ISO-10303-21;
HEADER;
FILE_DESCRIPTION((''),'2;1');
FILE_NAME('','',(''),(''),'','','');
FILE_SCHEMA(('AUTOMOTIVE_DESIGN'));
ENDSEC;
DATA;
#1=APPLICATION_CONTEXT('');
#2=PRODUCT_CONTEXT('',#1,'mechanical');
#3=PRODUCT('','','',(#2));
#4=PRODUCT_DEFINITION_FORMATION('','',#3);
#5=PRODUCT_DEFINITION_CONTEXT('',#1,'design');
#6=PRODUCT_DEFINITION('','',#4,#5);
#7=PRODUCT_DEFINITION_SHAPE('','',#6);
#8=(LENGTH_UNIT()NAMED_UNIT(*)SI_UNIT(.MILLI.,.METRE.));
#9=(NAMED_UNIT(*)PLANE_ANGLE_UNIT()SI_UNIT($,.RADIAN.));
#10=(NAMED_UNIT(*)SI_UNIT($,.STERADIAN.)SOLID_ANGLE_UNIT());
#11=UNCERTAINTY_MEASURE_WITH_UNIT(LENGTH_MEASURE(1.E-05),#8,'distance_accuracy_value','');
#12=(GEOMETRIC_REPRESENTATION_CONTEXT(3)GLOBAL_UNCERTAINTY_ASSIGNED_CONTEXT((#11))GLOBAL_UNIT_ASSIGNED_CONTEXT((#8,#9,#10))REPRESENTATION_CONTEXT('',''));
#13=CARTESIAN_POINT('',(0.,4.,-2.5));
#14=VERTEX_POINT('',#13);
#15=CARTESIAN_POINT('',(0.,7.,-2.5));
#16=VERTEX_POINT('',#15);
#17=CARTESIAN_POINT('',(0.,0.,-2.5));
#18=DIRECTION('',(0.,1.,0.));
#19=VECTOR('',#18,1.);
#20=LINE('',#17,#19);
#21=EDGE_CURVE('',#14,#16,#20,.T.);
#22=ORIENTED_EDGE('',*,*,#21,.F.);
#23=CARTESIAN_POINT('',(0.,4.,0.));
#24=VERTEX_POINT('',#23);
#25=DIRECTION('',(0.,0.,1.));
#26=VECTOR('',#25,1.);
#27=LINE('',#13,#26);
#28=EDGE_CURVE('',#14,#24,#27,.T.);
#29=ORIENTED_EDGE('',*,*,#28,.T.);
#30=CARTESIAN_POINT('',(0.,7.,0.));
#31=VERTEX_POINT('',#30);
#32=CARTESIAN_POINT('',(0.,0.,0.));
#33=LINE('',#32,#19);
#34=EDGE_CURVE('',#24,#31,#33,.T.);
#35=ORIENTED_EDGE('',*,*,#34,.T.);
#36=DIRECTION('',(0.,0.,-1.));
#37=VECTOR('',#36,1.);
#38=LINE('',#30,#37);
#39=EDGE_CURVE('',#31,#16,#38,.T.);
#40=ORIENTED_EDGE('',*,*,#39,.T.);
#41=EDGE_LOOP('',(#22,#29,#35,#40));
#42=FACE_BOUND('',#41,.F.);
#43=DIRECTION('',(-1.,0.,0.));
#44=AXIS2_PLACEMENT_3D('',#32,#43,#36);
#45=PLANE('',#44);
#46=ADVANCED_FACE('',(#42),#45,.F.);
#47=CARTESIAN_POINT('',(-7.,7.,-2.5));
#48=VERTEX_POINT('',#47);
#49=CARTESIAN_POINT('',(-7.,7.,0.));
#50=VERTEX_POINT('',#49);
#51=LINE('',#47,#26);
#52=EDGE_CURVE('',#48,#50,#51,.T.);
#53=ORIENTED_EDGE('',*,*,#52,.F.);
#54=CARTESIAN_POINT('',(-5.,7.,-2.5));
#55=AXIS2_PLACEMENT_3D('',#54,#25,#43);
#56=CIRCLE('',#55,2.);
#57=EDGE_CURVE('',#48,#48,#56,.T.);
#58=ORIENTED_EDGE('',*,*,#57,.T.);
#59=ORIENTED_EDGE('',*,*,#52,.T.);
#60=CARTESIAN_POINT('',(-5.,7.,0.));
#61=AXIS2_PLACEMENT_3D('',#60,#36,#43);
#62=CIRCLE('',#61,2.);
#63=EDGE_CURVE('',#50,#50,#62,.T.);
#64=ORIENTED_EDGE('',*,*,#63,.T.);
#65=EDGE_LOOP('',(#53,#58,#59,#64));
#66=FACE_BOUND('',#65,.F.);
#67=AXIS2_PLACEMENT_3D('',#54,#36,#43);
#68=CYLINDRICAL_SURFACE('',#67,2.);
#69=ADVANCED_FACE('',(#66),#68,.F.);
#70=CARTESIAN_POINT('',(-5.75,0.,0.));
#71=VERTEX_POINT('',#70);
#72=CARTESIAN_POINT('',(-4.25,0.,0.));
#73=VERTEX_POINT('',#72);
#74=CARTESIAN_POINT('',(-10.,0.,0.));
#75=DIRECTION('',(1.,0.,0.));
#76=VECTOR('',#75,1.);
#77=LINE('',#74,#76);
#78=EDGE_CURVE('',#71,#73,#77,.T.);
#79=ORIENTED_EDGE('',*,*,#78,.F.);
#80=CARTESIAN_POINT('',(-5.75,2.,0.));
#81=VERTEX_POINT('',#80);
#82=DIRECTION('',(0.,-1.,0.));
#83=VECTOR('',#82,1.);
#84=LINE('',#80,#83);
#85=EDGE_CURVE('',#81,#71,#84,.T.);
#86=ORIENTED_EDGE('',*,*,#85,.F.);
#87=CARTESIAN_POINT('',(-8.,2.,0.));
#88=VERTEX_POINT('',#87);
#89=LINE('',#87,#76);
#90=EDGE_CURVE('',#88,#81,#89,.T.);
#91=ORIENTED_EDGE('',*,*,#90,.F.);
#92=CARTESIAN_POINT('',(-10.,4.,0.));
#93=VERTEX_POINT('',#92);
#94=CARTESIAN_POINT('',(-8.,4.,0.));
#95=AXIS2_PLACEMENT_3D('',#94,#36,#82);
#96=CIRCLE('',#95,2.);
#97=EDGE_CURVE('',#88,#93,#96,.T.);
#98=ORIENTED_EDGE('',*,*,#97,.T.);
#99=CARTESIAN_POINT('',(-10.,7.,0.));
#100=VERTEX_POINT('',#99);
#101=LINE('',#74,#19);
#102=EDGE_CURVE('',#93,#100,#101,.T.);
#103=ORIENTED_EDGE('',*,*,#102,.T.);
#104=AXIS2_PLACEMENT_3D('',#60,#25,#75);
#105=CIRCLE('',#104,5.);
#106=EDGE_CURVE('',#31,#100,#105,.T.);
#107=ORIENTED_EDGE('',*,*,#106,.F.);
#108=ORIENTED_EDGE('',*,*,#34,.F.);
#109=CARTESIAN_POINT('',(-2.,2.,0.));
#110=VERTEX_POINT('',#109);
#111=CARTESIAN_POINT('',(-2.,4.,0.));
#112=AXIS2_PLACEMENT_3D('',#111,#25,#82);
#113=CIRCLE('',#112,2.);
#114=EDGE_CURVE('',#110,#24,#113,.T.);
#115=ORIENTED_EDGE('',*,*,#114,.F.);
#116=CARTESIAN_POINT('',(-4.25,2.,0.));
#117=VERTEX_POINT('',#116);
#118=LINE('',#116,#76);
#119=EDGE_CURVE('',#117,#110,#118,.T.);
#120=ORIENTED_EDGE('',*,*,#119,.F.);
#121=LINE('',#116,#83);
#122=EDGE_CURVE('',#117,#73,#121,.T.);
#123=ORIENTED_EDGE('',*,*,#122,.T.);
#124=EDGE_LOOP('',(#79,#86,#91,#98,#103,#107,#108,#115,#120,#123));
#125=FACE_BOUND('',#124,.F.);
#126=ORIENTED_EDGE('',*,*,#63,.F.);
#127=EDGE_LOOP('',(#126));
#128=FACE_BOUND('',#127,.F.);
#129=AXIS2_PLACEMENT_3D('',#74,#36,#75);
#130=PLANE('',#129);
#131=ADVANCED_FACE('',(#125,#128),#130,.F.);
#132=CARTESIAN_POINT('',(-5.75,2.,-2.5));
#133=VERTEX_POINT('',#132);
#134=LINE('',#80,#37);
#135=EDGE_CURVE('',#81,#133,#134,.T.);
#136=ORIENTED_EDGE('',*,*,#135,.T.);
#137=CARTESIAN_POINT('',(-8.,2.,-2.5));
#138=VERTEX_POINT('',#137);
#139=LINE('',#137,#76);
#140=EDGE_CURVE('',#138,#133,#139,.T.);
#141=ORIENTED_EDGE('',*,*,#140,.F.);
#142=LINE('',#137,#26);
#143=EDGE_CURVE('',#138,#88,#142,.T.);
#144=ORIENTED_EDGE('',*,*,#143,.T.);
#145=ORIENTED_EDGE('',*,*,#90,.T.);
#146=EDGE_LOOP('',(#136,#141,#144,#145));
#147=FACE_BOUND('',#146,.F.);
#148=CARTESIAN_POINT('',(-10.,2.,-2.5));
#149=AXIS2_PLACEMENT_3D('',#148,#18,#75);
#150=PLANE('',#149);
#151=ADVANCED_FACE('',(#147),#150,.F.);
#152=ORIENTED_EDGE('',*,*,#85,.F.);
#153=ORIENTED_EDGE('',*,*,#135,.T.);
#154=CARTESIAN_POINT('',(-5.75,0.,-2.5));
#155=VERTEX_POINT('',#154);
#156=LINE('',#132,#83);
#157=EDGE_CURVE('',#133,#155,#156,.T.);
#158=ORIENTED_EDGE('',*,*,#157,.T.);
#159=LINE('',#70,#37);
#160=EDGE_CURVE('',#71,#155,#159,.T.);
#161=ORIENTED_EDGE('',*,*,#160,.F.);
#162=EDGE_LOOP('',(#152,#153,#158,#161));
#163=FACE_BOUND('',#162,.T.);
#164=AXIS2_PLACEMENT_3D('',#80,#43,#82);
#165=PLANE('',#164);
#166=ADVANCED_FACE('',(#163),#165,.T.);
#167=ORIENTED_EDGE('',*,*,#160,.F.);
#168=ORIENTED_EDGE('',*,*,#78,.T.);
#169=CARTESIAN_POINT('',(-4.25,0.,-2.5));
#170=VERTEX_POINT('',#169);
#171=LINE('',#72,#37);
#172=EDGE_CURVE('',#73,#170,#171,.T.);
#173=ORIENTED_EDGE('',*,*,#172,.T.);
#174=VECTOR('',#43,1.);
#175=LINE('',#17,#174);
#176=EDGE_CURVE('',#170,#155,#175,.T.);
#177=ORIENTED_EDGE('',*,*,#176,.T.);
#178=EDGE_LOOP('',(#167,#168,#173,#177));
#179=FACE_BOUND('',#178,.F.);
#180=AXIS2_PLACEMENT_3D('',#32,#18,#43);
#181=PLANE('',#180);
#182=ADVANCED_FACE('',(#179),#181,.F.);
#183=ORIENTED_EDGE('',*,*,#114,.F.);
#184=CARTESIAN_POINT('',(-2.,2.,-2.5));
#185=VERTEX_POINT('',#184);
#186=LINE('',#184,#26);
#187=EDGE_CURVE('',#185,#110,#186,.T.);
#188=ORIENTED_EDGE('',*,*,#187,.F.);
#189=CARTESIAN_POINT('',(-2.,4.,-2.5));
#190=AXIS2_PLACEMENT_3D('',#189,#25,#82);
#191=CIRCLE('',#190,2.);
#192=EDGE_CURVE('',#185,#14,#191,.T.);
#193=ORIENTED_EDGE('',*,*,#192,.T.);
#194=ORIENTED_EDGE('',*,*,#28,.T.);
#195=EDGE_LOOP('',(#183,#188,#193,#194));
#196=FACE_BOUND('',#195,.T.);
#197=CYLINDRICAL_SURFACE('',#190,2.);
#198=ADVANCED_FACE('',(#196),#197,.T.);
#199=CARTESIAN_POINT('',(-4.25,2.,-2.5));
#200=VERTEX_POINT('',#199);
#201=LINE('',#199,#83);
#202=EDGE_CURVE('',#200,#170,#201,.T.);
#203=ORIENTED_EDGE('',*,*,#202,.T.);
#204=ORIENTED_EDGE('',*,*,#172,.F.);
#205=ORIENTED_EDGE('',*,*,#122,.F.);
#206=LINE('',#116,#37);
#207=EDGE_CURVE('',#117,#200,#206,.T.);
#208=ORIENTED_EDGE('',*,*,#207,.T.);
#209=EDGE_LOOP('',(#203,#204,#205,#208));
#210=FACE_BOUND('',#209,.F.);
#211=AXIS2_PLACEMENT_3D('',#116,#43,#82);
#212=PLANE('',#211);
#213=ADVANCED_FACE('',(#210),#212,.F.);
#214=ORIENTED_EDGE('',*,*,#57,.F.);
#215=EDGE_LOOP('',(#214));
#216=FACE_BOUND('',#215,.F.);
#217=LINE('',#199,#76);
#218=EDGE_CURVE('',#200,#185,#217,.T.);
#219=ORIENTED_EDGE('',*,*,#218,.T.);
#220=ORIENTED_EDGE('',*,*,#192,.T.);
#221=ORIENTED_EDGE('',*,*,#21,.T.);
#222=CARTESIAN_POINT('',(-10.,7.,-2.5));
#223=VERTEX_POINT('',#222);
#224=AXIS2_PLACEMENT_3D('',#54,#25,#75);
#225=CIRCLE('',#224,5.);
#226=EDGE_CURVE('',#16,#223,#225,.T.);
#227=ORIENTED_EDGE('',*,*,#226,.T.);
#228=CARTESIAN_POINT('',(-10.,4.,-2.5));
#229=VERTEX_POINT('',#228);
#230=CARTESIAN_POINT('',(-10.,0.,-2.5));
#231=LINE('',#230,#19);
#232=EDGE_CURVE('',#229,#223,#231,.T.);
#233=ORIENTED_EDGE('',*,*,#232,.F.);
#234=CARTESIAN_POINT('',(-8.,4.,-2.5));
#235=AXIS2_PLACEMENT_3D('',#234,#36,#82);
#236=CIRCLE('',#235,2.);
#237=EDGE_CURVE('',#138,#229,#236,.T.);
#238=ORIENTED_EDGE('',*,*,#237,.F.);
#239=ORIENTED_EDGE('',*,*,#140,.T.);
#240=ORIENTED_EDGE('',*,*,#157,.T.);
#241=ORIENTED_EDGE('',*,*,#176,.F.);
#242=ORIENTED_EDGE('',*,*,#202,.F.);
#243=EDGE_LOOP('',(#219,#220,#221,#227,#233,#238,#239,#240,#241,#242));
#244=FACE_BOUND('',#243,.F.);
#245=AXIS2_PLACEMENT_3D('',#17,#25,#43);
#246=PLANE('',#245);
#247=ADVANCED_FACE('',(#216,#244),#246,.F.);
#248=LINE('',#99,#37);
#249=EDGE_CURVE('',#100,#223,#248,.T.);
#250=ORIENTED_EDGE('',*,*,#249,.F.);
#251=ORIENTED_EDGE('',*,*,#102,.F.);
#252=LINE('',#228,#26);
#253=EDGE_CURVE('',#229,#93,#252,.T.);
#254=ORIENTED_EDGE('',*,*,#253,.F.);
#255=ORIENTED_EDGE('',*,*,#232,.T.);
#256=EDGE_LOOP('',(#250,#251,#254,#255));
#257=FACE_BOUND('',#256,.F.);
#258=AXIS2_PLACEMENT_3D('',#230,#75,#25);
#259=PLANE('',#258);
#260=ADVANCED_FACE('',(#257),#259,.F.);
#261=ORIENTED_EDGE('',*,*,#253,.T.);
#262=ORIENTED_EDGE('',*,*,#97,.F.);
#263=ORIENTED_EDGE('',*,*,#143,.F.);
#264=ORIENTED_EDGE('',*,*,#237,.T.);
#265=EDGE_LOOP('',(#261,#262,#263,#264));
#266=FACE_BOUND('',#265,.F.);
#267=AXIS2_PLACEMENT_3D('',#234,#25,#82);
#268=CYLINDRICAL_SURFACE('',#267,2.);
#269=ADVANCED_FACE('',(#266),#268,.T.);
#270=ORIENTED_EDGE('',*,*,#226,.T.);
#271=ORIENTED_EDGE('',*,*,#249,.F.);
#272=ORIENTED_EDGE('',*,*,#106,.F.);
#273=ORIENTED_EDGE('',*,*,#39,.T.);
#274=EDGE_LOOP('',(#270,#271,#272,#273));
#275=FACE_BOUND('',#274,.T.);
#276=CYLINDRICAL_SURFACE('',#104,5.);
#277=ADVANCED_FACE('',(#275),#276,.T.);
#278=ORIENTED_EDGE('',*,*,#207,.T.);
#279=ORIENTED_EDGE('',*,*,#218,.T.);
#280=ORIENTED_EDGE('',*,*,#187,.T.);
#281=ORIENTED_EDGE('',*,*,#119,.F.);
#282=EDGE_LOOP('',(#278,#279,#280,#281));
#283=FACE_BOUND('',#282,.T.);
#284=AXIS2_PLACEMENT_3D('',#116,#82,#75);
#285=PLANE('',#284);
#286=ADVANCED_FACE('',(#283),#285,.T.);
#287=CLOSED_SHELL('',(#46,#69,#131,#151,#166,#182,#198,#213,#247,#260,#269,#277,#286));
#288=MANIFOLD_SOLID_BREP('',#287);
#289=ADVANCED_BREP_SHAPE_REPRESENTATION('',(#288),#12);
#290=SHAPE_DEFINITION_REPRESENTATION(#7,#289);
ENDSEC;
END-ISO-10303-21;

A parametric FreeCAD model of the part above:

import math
import FreeCAD as App
import Part
import Sketcher
from FreeCAD import Vector
Q = App.Units.Quantity


def edges_at(feature, points):
    """Names of the edges that pass closest to the given points."""
    edges = feature.Shape.Edges
    near = lambda p: min(range(len(edges)), key=lambda i: edges[i].distToShape(Part.Vertex(*p))[0])
    return sorted({f"Edge{near(p) + 1}" for p in points})


def add_polygon(sketch, points):
    """Adds a closed chain of lines whose ends are joined by coincident constraints."""
    first, n = sketch.GeometryCount, len(points)
    for a, b in zip(points, points[1:] + points[:1]):
        sketch.addGeometry(Part.LineSegment(App.Vector(*a, 0), App.Vector(*b, 0)), False)
    for i in range(n):
        sketch.addConstraint(Sketcher.Constraint("Coincident", first + i, 2, first + (i + 1) % n, 1))

doc = App.newDocument("Part")
params = doc.addObject("Spreadsheet::Sheet", "Params")
for row, (alias, value) in enumerate([
    ("sketch1_width", "10 mm"),
    ("sketch1_height", "2.5 mm"),
    ("pad1_length", "12 mm"),
    ("sketch2_width", "4 mm"),
    ("sketch2_height", "2 mm"),
    ("pocket1_length", "2.5 mm"),
    ("sketch3_diameter", "4 mm"),
    ("pocket2_length", "2.5 mm"),
    ("fillet_radius", "2 mm"),
    ("fillet2_radius", "0.5 mm"),
    ("fillet3_radius", "0.5 mm"),
    ("sketch4_radius", "2 mm"),
    ("sketch4_radius2", "5 mm"),
    ("pocket3_length", "2.5 mm"),
    ("sketch5_radius", "0.5 mm"),
    ("sketch5_height", "2 mm"),
    ("sketch5_width", "0.25 mm"),
    ("pocket4_length", "2.5 mm"),
], start=1):
    params.set(f"A{row}", alias)
    params.set(f"B{row}", "=" + value)
    params.setAlias(f"B{row}", alias)

body = doc.addObject("PartDesign::Body", "Body")

sketch1 = doc.addObject("Sketcher::SketchObject", "Sketch")
body.addObject(sketch1)
sketch1.AttachmentSupport = (doc.XZ_Plane, [""])
sketch1.MapMode = "FlatFace"
add_polygon(sketch1, [(-10, 0), (0, 0), (0, -2.5), (-10, -2.5)])
sketch1.addConstraint([
    Sketcher.Constraint("Horizontal", 0),
    Sketcher.Constraint("Vertical", 1),
    Sketcher.Constraint("Horizontal", 2),
    Sketcher.Constraint("Vertical", 3),
    Sketcher.Constraint("Coincident", 0, 2, -1, 1),
    Sketcher.Constraint("DistanceX", 0, 1, 0, 2, Q("10 mm")),
    Sketcher.Constraint("DistanceY", 1, 2, 1, 1, Q("2.5 mm")),
])
sketch1.setExpression("Constraints[9]", "Params.sketch1_width")
sketch1.setExpression("Constraints[10]", "Params.sketch1_height")
pad1 = doc.addObject("PartDesign::Pad", "Pad")
body.addObject(pad1)
pad1.Profile = sketch1
pad1.setExpression("Length", "Params.pad1_length")
pad1.Reversed = True

sketch2 = doc.addObject("Sketcher::SketchObject", "Sketch001")
body.addObject(sketch2)
sketch2.AttachmentSupport = (doc.XY_Plane, [""])
sketch2.MapMode = "FlatFace"
sketch2.AttachmentOffset = App.Placement(Vector(0, 0, -2.5), App.Rotation())
add_polygon(sketch2, [(0, 2), (0, 0), (-4, 2)])
add_polygon(sketch2, [(-6, 2), (-10, 0), (-10, 2)])
sketch2.addConstraint([
    Sketcher.Constraint("Vertical", 0),
    Sketcher.Constraint("Horizontal", 2),
    Sketcher.Constraint("Vertical", 4),
    Sketcher.Constraint("Horizontal", 5),
    Sketcher.Constraint("Coincident", 0, 2, -1, 1),
    Sketcher.Constraint("PointOnObject", 3, 2, -1),
    Sketcher.Constraint("Horizontal", 2, 2, 4, 2),
    Sketcher.Constraint("Equal", 2, 5),
    Sketcher.Constraint("DistanceX", 2, 1, 2, 2, Q("4 mm")),
    Sketcher.Constraint("DistanceY", 0, 2, 0, 1, Q("2 mm")),
    Sketcher.Constraint("DistanceX", 5, 2, 1, 2, Q("2 mm")),
])
sketch2.setExpression("Constraints[14]", "Params.sketch2_width")
sketch2.setExpression("Constraints[15]", "Params.sketch2_height")
pocket1 = doc.addObject("PartDesign::Pocket", "Pocket")
body.addObject(pocket1)
pocket1.Profile = sketch2
pocket1.setExpression("Length", "Params.pocket1_length")
pocket1.Reversed = True

sketch3 = doc.addObject("Sketcher::SketchObject", "Sketch002")
body.addObject(sketch3)
sketch3.AttachmentSupport = (doc.XY_Plane, [""])
sketch3.MapMode = "FlatFace"
sketch3.AttachmentOffset = App.Placement(Vector(0, 0, -2.5), App.Rotation())
sketch3.addGeometry(Part.Circle(Vector(-5, 7, 0), Vector(0, 0, 1), 2), False)
sketch3.addConstraint([
    Sketcher.Constraint("Diameter", 0, Q("4 mm")),
    Sketcher.Constraint("DistanceX", 0, 3, -1, 1, Q("5 mm")),
    Sketcher.Constraint("DistanceY", -1, 1, 0, 3, Q("7 mm")),
])
sketch3.setExpression("Constraints[0]", "Params.sketch3_diameter")
pocket2 = doc.addObject("PartDesign::Pocket", "Pocket001")
body.addObject(pocket2)
pocket2.Profile = sketch3
pocket2.setExpression("Length", "Params.pocket2_length")
pocket2.Reversed = True
doc.recompute()

fillet = doc.addObject("PartDesign::Fillet", "Fillet")
body.addObject(fillet)
fillet.Base = (pocket2, edges_at(pocket2, [
    (0, 12, -1.25),
    (0, 2, -1.25),
    (-10, 12, -1.25),
    (-10, 2, -1.25),
]))
fillet.setExpression("Radius", "Params.fillet_radius")
doc.recompute()

fillet2 = doc.addObject("PartDesign::Fillet", "Fillet001")
body.addObject(fillet2)
fillet2.Base = (fillet, edges_at(fillet, [(0, 0, -1.25)]))
fillet2.setExpression("Radius", "Params.fillet2_radius")
doc.recompute()

fillet3 = doc.addObject("PartDesign::Fillet", "Fillet002")
body.addObject(fillet3)
fillet3.Base = (fillet2, edges_at(fillet2, [(-10, 0, -1.25)]))
fillet3.setExpression("Radius", "Params.fillet3_radius")

sketch4 = doc.addObject("Sketcher::SketchObject", "Sketch003")
body.addObject(sketch4)
sketch4.AttachmentSupport = (doc.XY_Plane, [""])
sketch4.MapMode = "FlatFace"
sketch4.addGeometry([
    Part.LineSegment(Vector(0, 7, 0), Vector(0, 10, 0)),
    Part.ArcOfCircle(Part.Circle(Vector(-2, 10, 0), Vector(0, 0, 1), 2), math.radians(0), math.radians(90)),
    Part.LineSegment(Vector(-2, 12, 0), Vector(-5, 12, 0)),
    Part.ArcOfCircle(Part.Circle(Vector(-5, 7, 0), Vector(0, 0, 1), 5), math.radians(0), math.radians(90)),
    Part.ArcOfCircle(Part.Circle(Vector(-5, 7, 0), Vector(0, 0, 1), 5), math.radians(90), math.radians(180)),
    Part.LineSegment(Vector(-5, 12, 0), Vector(-8, 12, 0)),
    Part.ArcOfCircle(Part.Circle(Vector(-8, 10, 0), Vector(0, 0, 1), 2), math.radians(90), math.radians(180)),
    Part.LineSegment(Vector(-10, 10, 0), Vector(-10, 7, 0)),
], False)
sketch4.addConstraint([
    Sketcher.Constraint("Tangent", 0, 2, 1, 1),
    Sketcher.Constraint("Tangent", 1, 2, 2, 1),
    Sketcher.Constraint("Tangent", 2, 2, 3, 2),
    Sketcher.Constraint("Tangent", 3, 1, 0, 1),
    Sketcher.Constraint("Tangent", 4, 1, 5, 1),
    Sketcher.Constraint("Tangent", 5, 2, 6, 1),
    Sketcher.Constraint("Tangent", 6, 2, 7, 1),
    Sketcher.Constraint("Tangent", 7, 2, 4, 2),
    Sketcher.Constraint("Vertical", 0),
    Sketcher.Constraint("Horizontal", 2),
    Sketcher.Constraint("Horizontal", 5),
    Sketcher.Constraint("Vertical", 7),
    Sketcher.Constraint("Coincident", 4, 3, 3, 3),
    Sketcher.Constraint("Equal", 3, 4),
    Sketcher.Constraint("Equal", 1, 6),
    Sketcher.Constraint("PointOnObject", 0, 2, -2),
    Sketcher.Constraint("Radius", 1, Q("2 mm")),
    Sketcher.Constraint("Radius", 3, Q("5 mm")),
    Sketcher.Constraint("DistanceY", -1, 1, 1, 3, Q("10 mm")),
])
sketch4.setExpression("Constraints[16]", "Params.sketch4_radius")
sketch4.setExpression("Constraints[17]", "Params.sketch4_radius2")
pocket3 = doc.addObject("PartDesign::Pocket", "Pocket002")
body.addObject(pocket3)
pocket3.Profile = sketch4
pocket3.setExpression("Length", "Params.pocket3_length")

sketch5 = doc.addObject("Sketcher::SketchObject", "Sketch004")
body.addObject(sketch5)
sketch5.AttachmentSupport = (doc.XY_Plane, [""])
sketch5.MapMode = "FlatFace"
sketch5.addGeometry([
    Part.LineSegment(Vector(-1.8944, 0.9472, 0), Vector(-4, 2, 0)),
    Part.LineSegment(Vector(-4, 2, 0), Vector(-4.25, 2, 0)),
    Part.LineSegment(Vector(-4.25, 2, 0), Vector(-4.25, 0, 0)),
    Part.LineSegment(Vector(-4.25, 0, 0), Vector(-2.118, 0, 0)),
    Part.ArcOfCircle(Part.Circle(Vector(-2.118, 0.5, 0), Vector(0, 0, 1), 0.5), math.radians(-90), math.radians(63.434949)),
    Part.LineSegment(Vector(-7.882, 0, 0), Vector(-5.75, 0, 0)),
    Part.LineSegment(Vector(-5.75, 0, 0), Vector(-5.75, 2, 0)),
    Part.LineSegment(Vector(-5.75, 2, 0), Vector(-6, 2, 0)),
    Part.LineSegment(Vector(-6, 2, 0), Vector(-8.1056, 0.9472, 0)),
    Part.ArcOfCircle(Part.Circle(Vector(-7.882, 0.5, 0), Vector(0, 0, 1), 0.499985), math.radians(116.565051), math.radians(270)),
], False)
sketch5.addConstraint([
    Sketcher.Constraint("Coincident", 0, 2, 1, 1),
    Sketcher.Constraint("Coincident", 1, 2, 2, 1),
    Sketcher.Constraint("Coincident", 2, 2, 3, 1),
    Sketcher.Constraint("Tangent", 3, 2, 4, 1),
    Sketcher.Constraint("Tangent", 4, 2, 0, 1),
    Sketcher.Constraint("Coincident", 5, 2, 6, 1),
    Sketcher.Constraint("Coincident", 6, 2, 7, 1),
    Sketcher.Constraint("Coincident", 7, 2, 8, 1),
    Sketcher.Constraint("Tangent", 8, 2, 9, 1),
    Sketcher.Constraint("Tangent", 9, 2, 5, 1),
    Sketcher.Constraint("Horizontal", 1),
    Sketcher.Constraint("Vertical", 2),
    Sketcher.Constraint("Horizontal", 3),
    Sketcher.Constraint("Horizontal", 5),
    Sketcher.Constraint("Vertical", 6),
    Sketcher.Constraint("Horizontal", 7),
    Sketcher.Constraint("Equal", 4, 9),
    Sketcher.Constraint("PointOnObject", 2, 2, -1),
    Sketcher.Constraint("PointOnObject", 5, 2, -1),
    Sketcher.Constraint("Horizontal", 1, 2, 6, 2),
    Sketcher.Constraint("Horizontal", 4, 2, 8, 2),
    Sketcher.Constraint("Equal", 3, 5),
    Sketcher.Constraint("Radius", 4, Q("0.5 mm")),
    Sketcher.Constraint("DistanceY", 2, 2, 2, 1, Q("2 mm")),
    Sketcher.Constraint("DistanceX", 0, 2, -1, 1, Q("4 mm")),
    Sketcher.Constraint("DistanceX", 7, 2, -1, 1, Q("6 mm")),
    Sketcher.Constraint("DistanceX", 1, 2, 1, 1, Q("0.25 mm")),
    Sketcher.Constraint("DistanceX", 3, 1, 3, 2, Q("2.132 mm")),
])
sketch5.setExpression("Constraints[22]", "Params.sketch5_radius")
sketch5.setExpression("Constraints[23]", "Params.sketch5_height")
sketch5.setExpression("Constraints[26]", "Params.sketch5_width")
pocket4 = doc.addObject("PartDesign::Pocket", "Pocket003")
body.addObject(pocket4)
pocket4.Profile = sketch5
pocket4.setExpression("Length", "Params.pocket4_length")

doc.recompute()
